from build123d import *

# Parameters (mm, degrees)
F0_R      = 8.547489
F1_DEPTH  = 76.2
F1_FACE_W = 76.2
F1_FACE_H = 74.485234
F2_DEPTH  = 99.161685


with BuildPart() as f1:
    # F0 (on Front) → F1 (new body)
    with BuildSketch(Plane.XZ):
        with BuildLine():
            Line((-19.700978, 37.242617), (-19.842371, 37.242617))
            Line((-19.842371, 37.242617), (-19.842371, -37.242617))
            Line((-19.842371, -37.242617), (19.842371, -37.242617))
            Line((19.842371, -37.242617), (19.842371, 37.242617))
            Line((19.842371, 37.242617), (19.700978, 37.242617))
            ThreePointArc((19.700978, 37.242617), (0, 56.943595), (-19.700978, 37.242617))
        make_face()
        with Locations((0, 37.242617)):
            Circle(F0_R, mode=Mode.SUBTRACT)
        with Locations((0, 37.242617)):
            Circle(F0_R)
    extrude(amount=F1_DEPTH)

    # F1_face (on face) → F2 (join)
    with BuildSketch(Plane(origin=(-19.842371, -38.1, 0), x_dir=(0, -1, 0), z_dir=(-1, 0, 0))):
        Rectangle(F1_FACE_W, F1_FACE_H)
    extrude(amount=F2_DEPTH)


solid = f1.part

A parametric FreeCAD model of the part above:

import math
import FreeCAD as App
import Part
import Sketcher

V = App.Vector
Q = App.Units.Quantity

doc = App.newDocument("Part")
body = doc.addObject("PartDesign::Body", "Body")

# Sketch on XZ plane
sketch1 = body.newObject("Sketcher::SketchObject", "Sketch")
sketch1.AttachmentSupport = (doc.getObject("XZ_Plane"), [""])
sketch1.MapMode = "FlatFace"
sketch1.addGeometry(Part.LineSegment(V(-19.7, 37.24, 0), V(-19.84, 37.24, 0)), False)
sketch1.addGeometry(Part.LineSegment(V(-19.84, 37.24, 0), V(-19.84, -37.24, 0)), False)
sketch1.addGeometry(Part.LineSegment(V(-19.84, -37.24, 0), V(19.84, -37.24, 0)), False)
sketch1.addGeometry(Part.LineSegment(V(19.84, -37.24, 0), V(19.84, 37.24, 0)), False)
sketch1.addGeometry(Part.LineSegment(V(19.84, 37.24, 0), V(19.7, 37.24, 0)), False)
sketch1.addGeometry(Part.ArcOfCircle(Part.Circle(V(0, 37.24, 0), V(0, 0, 1), 19.7), math.radians(0), math.radians(180)), False)
sketch1.addConstraint(Sketcher.Constraint("Coincident", 0, 2, 1, 1))
sketch1.addConstraint(Sketcher.Constraint("Coincident", 1, 2, 2, 1))
sketch1.addConstraint(Sketcher.Constraint("Coincident", 2, 2, 3, 1))
sketch1.addConstraint(Sketcher.Constraint("Coincident", 3, 2, 4, 1))
sketch1.addConstraint(Sketcher.Constraint("Coincident", 4, 2, 5, 1))
sketch1.addConstraint(Sketcher.Constraint("Coincident", 5, 2, 0, 1))
sketch1.addConstraint(Sketcher.Constraint("Horizontal", 0))
sketch1.addConstraint(Sketcher.Constraint("Vertical", 1))
sketch1.addConstraint(Sketcher.Constraint("Horizontal", 2))
sketch1.addConstraint(Sketcher.Constraint("Vertical", 3))
sketch1.addConstraint(Sketcher.Constraint("Horizontal", 4))
sketch1.addConstraint(Sketcher.Constraint("Symmetric", 0, 2, 2, 2, -1, 1))
sketch1.addConstraint(Sketcher.Constraint("Symmetric", 4, 2, 5, 2, -2))
sketch1.addConstraint(Sketcher.Constraint("Horizontal", 5, 3, 0, 2))
sketch1.addConstraint(Sketcher.Constraint("Radius", 5, 19.700978))
sketch1.addConstraint(Sketcher.Constraint("DistanceX", 0, 2, 0, 1, 0.141393))
sketch1.addConstraint(Sketcher.Constraint("DistanceY", 1, 2, 1, 1, 74.485234))
pad1 = body.newObject("PartDesign::Pad", "Pad")
pad1.Profile = sketch1
pad1.Length = Q("3 in")

# Sketch on YZ plane
sketch2 = body.newObject("Sketcher::SketchObject", "Sketch001")
sketch2.AttachmentSupport = (doc.getObject("YZ_Plane"), [""])
sketch2.MapMode = "FlatFace"
sketch2.AttachmentOffset = App.Placement(V(0, 0, -19.842371), App.Rotation())
sketch2.addGeometry(Part.LineSegment(V(0, 37, 0), V(0, -37, 0)), False)
sketch2.addGeometry(Part.LineSegment(V(0, -37, 0), V(-76, -37, 0)), False)
sketch2.addGeometry(Part.LineSegment(V(-76, -37, 0), V(-76, 37, 0)), False)
sketch2.addGeometry(Part.LineSegment(V(-76, 37, 0), V(0, 37, 0)), False)
sketch2.addConstraint(Sketcher.Constraint("Coincident", 0, 2, 1, 1))
sketch2.addConstraint(Sketcher.Constraint("Coincident", 1, 2, 2, 1))
sketch2.addConstraint(Sketcher.Constraint("Coincident", 2, 2, 3, 1))
sketch2.addConstraint(Sketcher.Constraint("Coincident", 3, 2, 0, 1))
sketch2.addConstraint(Sketcher.Constraint("Vertical", 0))
sketch2.addConstraint(Sketcher.Constraint("Horizontal", 1))
sketch2.addConstraint(Sketcher.Constraint("Vertical", 2))
sketch2.addConstraint(Sketcher.Constraint("Horizontal", 3))
sketch2.addConstraint(Sketcher.Constraint("Symmetric", 0, 2, 3, 2, -1, 1))
sketch2.addConstraint(Sketcher.Constraint("DistanceX", 1, 2, 1, 1, Q("3 in")))
sketch2.addConstraint(Sketcher.Constraint("DistanceY", 0, 2, 0, 1, 74.485234))
pad2 = body.newObject("PartDesign::Pad", "Pad001")
pad2.Profile = sketch2
pad2.Length = 99.161685
pad2.Reversed = True

doc.recompute()
